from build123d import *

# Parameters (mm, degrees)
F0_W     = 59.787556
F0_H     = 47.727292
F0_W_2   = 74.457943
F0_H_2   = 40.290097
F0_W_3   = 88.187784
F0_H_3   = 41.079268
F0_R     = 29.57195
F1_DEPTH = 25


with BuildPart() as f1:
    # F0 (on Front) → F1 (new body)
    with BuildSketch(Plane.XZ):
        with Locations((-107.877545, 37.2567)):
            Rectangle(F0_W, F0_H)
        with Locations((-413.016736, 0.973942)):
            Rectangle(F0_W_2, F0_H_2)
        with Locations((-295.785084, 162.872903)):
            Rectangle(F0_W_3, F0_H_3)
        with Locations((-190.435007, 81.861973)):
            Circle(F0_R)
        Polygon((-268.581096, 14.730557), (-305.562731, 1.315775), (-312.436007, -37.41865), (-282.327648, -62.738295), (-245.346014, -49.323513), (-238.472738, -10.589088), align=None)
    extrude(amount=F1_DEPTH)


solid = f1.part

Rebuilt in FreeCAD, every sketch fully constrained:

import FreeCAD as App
import Part
import Sketcher

V = App.Vector
Q = App.Units.Quantity


def add_polygon(sketch, points):
    """Adds a closed chain of lines whose ends are joined by coincident constraints."""
    first, n = sketch.GeometryCount, len(points)
    for a, b in zip(points, points[1:] + points[:1]):
        sketch.addGeometry(Part.LineSegment(App.Vector(*a, 0), App.Vector(*b, 0)), False)
    for i in range(n):
        sketch.addConstraint(Sketcher.Constraint("Coincident", first + i, 2, first + (i + 1) % n, 1))

doc = App.newDocument("Part")
body = doc.addObject("PartDesign::Body", "Body")
body.AllowCompound = True

sketch1 = body.newObject("Sketcher::SketchObject", "Sketch")
sketch1.AttachmentSupport = (doc.getObject("XZ_Plane"), [""])
sketch1.MapMode = "FlatFace"
add_polygon(sketch1, [(-137.771323, 61.120346), (-137.771323, 13.393054), (-77.983767, 13.393054), (-77.983767, 61.120346)])
add_polygon(sketch1, [(-450.245707, 21.11899), (-450.245707, -19.171107), (-375.787764, -19.171107), (-375.787764, 21.11899)])
add_polygon(sketch1, [(-339.878976, 183.412537), (-339.878976, 142.333269), (-251.691192, 142.333269), (-251.691192, 183.412537)])
sketch1.addGeometry(Part.Circle(V(-190.435007, 81.861973, 0), V(0, 0, 1), 29.57195), False)
add_polygon(sketch1, [(-268.581096, 14.730557), (-305.562731, 1.315775), (-312.436007, -37.41865), (-282.327648, -62.738295), (-245.346014, -49.323513), (-238.472738, -10.589088)])
sketch1.addConstraint(Sketcher.Constraint("Vertical", 0))
sketch1.addConstraint(Sketcher.Constraint("Horizontal", 1))
sketch1.addConstraint(Sketcher.Constraint("Vertical", 2))
sketch1.addConstraint(Sketcher.Constraint("Horizontal", 3))
sketch1.addConstraint(Sketcher.Constraint("Vertical", 4))
sketch1.addConstraint(Sketcher.Constraint("Horizontal", 5))
sketch1.addConstraint(Sketcher.Constraint("Vertical", 6))
sketch1.addConstraint(Sketcher.Constraint("Horizontal", 7))
sketch1.addConstraint(Sketcher.Constraint("Vertical", 8))
sketch1.addConstraint(Sketcher.Constraint("Horizontal", 9))
sketch1.addConstraint(Sketcher.Constraint("Vertical", 10))
sketch1.addConstraint(Sketcher.Constraint("Horizontal", 11))
sketch1.addConstraint(Sketcher.Constraint("Diameter", 12, Q("59.1439 mm")))
sketch1.addConstraint(Sketcher.Constraint("DistanceY", 0, 2, 0, 1, Q("47.727292 mm")))
sketch1.addConstraint(Sketcher.Constraint("DistanceX", 4, 2, 12, 3, Q("259.8107 mm")))
sketch1.addConstraint(Sketcher.Constraint("DistanceY", 13, 2, 12, 3, Q("80.546198 mm")))
sketch1.addConstraint(Sketcher.Constraint("DistanceX", 4, 2, 14, 2, Q("137.8097 mm")))
sketch1.addConstraint(Sketcher.Constraint("Distance", 13, Q("39.339518 mm")))
sketch1.addConstraint(Sketcher.Constraint("Distance", 15, Q("39.339518 mm")))
sketch1.addConstraint(Sketcher.Constraint("DistanceX", 1, 1, 1, 2, Q("59.787556 mm")))
sketch1.addConstraint(Sketcher.Constraint("DistanceX", 5, 1, 5, 2, Q("74.457943 mm")))
sketch1.addConstraint(Sketcher.Constraint("DistanceX", 9, 1, 9, 2, Q("88.187784 mm")))
sketch1.addConstraint(Sketcher.Constraint("DistanceY", 4, 2, 4, 1, Q("40.290097 mm")))
sketch1.addConstraint(Sketcher.Constraint("DistanceY", 8, 2, 8, 1, Q("41.079268 mm")))
sketch1.addConstraint(Sketcher.Constraint("DistanceY", -1, 1, 6, 2, Q("21.11899 mm")))
sketch1.addConstraint(Sketcher.Constraint("DistanceY", -1, 1, 8, 2, Q("142.333269 mm")))
sketch1.addConstraint(Sketcher.Constraint("DistanceX", 9, 2, -1, 1, Q("251.691192 mm")))
sketch1.addConstraint(Sketcher.Constraint("DistanceX", 13, 2, -1, 1, Q("305.562731 mm")))
sketch1.addConstraint(Sketcher.Constraint("DistanceY", 14, 2, -1, 1, Q("37.41865 mm")))
sketch1.addConstraint(Sketcher.Constraint("DistanceX", 15, 2, -1, 1, Q("282.327648 mm")))
sketch1.addConstraint(Sketcher.Constraint("DistanceX", 17, 2, -1, 1, Q("238.472738 mm")))
sketch1.addConstraint(Sketcher.Constraint("DistanceY", 0, 2, 12, 3, Q("68.468919 mm")))
sketch1.addConstraint(Sketcher.Constraint("DistanceX", 12, 3, 1, 2, Q("112.45124 mm")))
sketch1.addConstraint(Sketcher.Constraint("DistanceY", 4, 2, 12, 3, Q("101.03308 mm")))
sketch1.addConstraint(Sketcher.Constraint("DistanceX", 6, 2, 8, 2, Q("35.908788 mm")))
sketch1.addConstraint(Sketcher.Constraint("DistanceX", 16, 2, 0, 2, Q("107.574691 mm")))
sketch1.addConstraint(Sketcher.Constraint("DistanceY", 14, 2, 17, 2, Q("26.829562 mm")))
sketch1.addConstraint(Sketcher.Constraint("DistanceX", 18, 2, 17, 2, Q("30.108358 mm")))
sketch1.addConstraint(Sketcher.Constraint("DistanceY", 16, 2, 18, 2, Q("64.05407 mm")))
pad1 = body.newObject("PartDesign::Pad", "Pad")
pad1.Profile = sketch1
pad1.Length = 25

doc.recompute()
